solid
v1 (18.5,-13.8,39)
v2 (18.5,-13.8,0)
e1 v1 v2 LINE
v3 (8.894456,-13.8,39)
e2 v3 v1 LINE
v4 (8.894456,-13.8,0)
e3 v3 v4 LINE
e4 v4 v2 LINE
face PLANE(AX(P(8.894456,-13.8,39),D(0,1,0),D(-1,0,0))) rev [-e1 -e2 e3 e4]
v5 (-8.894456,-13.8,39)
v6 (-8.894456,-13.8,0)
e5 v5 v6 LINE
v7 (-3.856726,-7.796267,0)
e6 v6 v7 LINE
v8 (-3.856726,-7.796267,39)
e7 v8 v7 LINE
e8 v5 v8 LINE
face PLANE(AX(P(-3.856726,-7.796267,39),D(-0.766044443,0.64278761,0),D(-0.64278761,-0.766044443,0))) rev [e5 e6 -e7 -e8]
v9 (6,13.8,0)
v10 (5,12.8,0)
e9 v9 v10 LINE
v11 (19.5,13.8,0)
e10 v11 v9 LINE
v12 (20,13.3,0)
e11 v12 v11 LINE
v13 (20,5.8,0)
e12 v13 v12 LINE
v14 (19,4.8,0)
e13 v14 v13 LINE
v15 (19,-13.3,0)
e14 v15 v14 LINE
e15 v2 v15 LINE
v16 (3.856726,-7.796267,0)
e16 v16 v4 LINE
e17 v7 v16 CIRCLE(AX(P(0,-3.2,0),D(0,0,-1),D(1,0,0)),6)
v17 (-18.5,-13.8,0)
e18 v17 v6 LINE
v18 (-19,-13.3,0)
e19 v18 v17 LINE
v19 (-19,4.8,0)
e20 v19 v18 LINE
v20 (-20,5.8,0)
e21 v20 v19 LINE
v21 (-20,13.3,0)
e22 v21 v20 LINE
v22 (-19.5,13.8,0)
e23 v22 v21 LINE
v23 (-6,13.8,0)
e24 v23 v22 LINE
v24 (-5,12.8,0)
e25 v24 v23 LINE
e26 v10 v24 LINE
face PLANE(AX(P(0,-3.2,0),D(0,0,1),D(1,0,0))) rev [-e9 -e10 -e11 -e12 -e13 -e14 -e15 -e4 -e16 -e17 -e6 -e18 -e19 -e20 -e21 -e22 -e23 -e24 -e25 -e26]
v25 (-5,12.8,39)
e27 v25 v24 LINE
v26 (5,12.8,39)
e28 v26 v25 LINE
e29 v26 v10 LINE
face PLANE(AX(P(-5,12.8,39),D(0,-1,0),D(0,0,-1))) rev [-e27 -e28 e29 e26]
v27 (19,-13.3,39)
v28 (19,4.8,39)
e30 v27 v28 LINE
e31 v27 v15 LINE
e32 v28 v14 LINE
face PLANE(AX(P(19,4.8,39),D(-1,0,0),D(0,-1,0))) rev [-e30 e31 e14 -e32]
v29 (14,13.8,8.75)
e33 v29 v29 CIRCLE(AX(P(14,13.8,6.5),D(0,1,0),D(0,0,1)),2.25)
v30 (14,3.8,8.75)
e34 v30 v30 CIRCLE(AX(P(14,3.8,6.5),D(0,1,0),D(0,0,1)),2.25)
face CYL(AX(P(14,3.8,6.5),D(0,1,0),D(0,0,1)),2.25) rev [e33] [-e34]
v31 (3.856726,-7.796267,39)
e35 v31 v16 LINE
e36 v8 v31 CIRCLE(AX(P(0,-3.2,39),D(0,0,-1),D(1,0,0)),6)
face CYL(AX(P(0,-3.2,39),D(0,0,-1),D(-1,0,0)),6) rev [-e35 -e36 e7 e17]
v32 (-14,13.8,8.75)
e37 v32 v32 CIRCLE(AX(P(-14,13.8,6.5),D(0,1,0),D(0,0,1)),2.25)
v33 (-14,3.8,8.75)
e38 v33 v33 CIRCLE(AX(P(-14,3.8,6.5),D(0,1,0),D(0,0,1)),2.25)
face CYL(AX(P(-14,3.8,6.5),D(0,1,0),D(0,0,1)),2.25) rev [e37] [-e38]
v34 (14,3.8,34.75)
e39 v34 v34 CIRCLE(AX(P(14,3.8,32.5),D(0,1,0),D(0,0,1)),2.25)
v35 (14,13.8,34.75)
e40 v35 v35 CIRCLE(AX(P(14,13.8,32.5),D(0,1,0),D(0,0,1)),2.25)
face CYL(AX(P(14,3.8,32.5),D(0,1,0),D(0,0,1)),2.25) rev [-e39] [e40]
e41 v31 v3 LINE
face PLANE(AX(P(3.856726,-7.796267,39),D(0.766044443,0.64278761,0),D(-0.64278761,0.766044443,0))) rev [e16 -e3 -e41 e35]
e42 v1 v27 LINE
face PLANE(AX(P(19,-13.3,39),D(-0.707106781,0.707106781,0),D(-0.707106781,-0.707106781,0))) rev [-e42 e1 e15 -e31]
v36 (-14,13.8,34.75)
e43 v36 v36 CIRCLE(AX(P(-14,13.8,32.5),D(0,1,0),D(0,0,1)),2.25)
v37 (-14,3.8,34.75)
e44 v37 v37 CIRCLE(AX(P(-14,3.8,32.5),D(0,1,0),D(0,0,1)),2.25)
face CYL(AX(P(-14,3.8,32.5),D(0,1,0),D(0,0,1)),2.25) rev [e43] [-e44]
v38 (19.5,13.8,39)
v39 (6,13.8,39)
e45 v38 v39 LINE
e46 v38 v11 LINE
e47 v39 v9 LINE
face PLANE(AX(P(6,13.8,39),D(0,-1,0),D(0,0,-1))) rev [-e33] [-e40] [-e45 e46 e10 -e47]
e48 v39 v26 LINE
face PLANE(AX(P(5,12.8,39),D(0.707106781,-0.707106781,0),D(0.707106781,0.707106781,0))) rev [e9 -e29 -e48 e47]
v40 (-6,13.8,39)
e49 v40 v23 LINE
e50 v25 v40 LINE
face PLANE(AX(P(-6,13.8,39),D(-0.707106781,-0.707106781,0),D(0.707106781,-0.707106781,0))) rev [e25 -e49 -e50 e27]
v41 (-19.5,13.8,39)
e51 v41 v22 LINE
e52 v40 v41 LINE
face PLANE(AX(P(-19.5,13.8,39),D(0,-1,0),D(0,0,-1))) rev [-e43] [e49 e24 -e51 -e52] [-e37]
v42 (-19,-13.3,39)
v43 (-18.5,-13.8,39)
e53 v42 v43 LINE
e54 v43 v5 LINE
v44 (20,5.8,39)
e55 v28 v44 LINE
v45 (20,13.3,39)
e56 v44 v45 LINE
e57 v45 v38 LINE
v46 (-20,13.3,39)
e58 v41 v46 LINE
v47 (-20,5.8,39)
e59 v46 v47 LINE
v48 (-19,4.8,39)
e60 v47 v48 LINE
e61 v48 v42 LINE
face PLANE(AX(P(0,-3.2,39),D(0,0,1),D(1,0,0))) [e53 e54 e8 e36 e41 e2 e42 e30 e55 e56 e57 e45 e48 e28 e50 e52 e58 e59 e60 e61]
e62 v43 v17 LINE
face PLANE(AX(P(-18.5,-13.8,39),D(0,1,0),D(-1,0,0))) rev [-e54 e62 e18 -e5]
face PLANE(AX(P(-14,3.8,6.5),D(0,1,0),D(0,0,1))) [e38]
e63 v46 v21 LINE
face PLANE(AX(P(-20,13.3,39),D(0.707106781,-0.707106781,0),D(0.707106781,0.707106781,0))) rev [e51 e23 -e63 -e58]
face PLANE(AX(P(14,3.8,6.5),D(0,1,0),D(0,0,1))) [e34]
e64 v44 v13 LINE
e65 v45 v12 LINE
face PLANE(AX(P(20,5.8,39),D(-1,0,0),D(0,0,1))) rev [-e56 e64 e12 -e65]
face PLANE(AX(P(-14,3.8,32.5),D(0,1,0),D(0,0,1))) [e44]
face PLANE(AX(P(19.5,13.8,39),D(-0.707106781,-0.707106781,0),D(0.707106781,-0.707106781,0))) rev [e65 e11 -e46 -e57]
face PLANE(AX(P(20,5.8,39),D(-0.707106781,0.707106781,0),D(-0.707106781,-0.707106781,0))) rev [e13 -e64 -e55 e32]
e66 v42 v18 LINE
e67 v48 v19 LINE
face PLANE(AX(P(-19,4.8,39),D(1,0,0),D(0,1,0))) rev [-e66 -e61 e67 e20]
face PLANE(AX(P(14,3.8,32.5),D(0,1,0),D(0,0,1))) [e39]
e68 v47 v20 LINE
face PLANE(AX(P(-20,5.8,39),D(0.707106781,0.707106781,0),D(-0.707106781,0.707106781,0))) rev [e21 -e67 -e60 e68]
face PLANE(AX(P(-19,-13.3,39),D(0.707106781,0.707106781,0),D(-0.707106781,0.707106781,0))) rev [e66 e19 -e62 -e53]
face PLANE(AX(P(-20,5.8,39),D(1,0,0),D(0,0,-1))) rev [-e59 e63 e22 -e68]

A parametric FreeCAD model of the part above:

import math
import FreeCAD as App
import Part
import Sketcher
Q = App.Units.Quantity

doc = App.newDocument("Part")
body = doc.addObject("PartDesign::Body", "Body")

# Sketch on XY plane
sketch1 = body.newObject("Sketcher::SketchObject", "Sketch")
sketch1.AttachmentSupport = (doc.getObject("XY_Plane"), [""])
sketch1.MapMode = "FlatFace"
sketch1.addGeometry([
    Part.LineSegment(App.Vector(-18.5, -13.8, 0), App.Vector(-8.9, -13.8, 0)),  # 0
    Part.LineSegment(App.Vector(-8.9, -13.8, 0), App.Vector(-3.9, -7.8, 0)),  # 1
    Part.ArcOfCircle(Part.Circle(App.Vector(0, -3.2, 0), App.Vector(0, 0, 1), 6), math.radians(-50), math.radians(230)),  # 2
    Part.LineSegment(App.Vector(3.9, -7.8, 0), App.Vector(8.9, -13.8, 0)),  # 3
    Part.LineSegment(App.Vector(8.9, -13.8, 0), App.Vector(18.5, -13.8, 0)),  # 4
    Part.LineSegment(App.Vector(18.5, -13.8, 0), App.Vector(19, -13.3, 0)),  # 5
    Part.LineSegment(App.Vector(19, -13.3, 0), App.Vector(19, 4.8, 0)),  # 6
    Part.LineSegment(App.Vector(19, 4.8, 0), App.Vector(20, 5.8, 0)),  # 7
    Part.LineSegment(App.Vector(20, 5.8, 0), App.Vector(20, 13.3, 0)),  # 8
    Part.LineSegment(App.Vector(20, 13.3, 0), App.Vector(19.5, 13.8, 0)),  # 9
    Part.LineSegment(App.Vector(19.5, 13.8, 0), App.Vector(6, 13.8, 0)),  # 10
    Part.LineSegment(App.Vector(6, 13.8, 0), App.Vector(5, 12.8, 0)),  # 11
    Part.LineSegment(App.Vector(5, 12.8, 0), App.Vector(-5, 12.8, 0)),  # 12
    Part.LineSegment(App.Vector(-5, 12.8, 0), App.Vector(-6, 13.8, 0)),  # 13
    Part.LineSegment(App.Vector(-6, 13.8, 0), App.Vector(-19.5, 13.8, 0)),  # 14
    Part.LineSegment(App.Vector(-19.5, 13.8, 0), App.Vector(-20, 13.3, 0)),  # 15
    Part.LineSegment(App.Vector(-20, 13.3, 0), App.Vector(-20, 5.8, 0)),  # 16
    Part.LineSegment(App.Vector(-20, 5.8, 0), App.Vector(-19, 4.8, 0)),  # 17
    Part.LineSegment(App.Vector(-19, 4.8, 0), App.Vector(-19, -13.3, 0)),  # 18
    Part.LineSegment(App.Vector(-19, -13.3, 0), App.Vector(-18.5, -13.8, 0)),  # 19
], False)
sketch1.addConstraint([
    Sketcher.Constraint("Coincident", 0, 2, 1, 1),
    Sketcher.Constraint("Coincident", 1, 2, 2, 2),
    Sketcher.Constraint("Coincident", 2, 1, 3, 1),
    Sketcher.Constraint("Coincident", 3, 2, 4, 1),
    Sketcher.Constraint("Coincident", 4, 2, 5, 1),
    Sketcher.Constraint("Coincident", 5, 2, 6, 1),
    Sketcher.Constraint("Coincident", 6, 2, 7, 1),
    Sketcher.Constraint("Coincident", 7, 2, 8, 1),
    Sketcher.Constraint("Coincident", 8, 2, 9, 1),
    Sketcher.Constraint("Coincident", 9, 2, 10, 1),
    Sketcher.Constraint("Coincident", 10, 2, 11, 1),
    Sketcher.Constraint("Coincident", 11, 2, 12, 1),
    Sketcher.Constraint("Coincident", 12, 2, 13, 1),
    Sketcher.Constraint("Coincident", 13, 2, 14, 1),
    Sketcher.Constraint("Coincident", 14, 2, 15, 1),
    Sketcher.Constraint("Coincident", 15, 2, 16, 1),
    Sketcher.Constraint("Coincident", 16, 2, 17, 1),
    Sketcher.Constraint("Coincident", 17, 2, 18, 1),
    Sketcher.Constraint("Coincident", 18, 2, 19, 1),
    Sketcher.Constraint("Coincident", 19, 2, 0, 1),
    Sketcher.Constraint("Horizontal", 0),
    Sketcher.Constraint("Horizontal", 4),
    Sketcher.Constraint("Vertical", 6),
    Sketcher.Constraint("Vertical", 8),
    Sketcher.Constraint("Horizontal", 10),
    Sketcher.Constraint("Horizontal", 12),
    Sketcher.Constraint("Horizontal", 14),
    Sketcher.Constraint("Vertical", 16),
    Sketcher.Constraint("Vertical", 18),
    Sketcher.Constraint("Symmetric", 1, 2, 2, 1, -2),
    Sketcher.Constraint("Symmetric", 0, 2, 3, 2, -2),
    Sketcher.Constraint("Symmetric", 10, 2, 13, 2, -2),
    Sketcher.Constraint("Symmetric", 8, 2, 15, 2, -2),
    Sketcher.Constraint("Symmetric", 6, 2, 17, 2, -2),
    Sketcher.Constraint("Parallel", 5, 7),
    Sketcher.Constraint("Perpendicular", 7, 9),
    Sketcher.Constraint("Perpendicular", 9, 11),
    Sketcher.Constraint("Perpendicular", 11, 13),
    Sketcher.Constraint("Perpendicular", 13, 15),
    Sketcher.Constraint("Perpendicular", 15, 17),
    Sketcher.Constraint("Parallel", 17, 19),
    Sketcher.Constraint("Horizontal", 7, 2, 16, 2),
    Sketcher.Constraint("Horizontal", 5, 2, 18, 2),
    Sketcher.Constraint("Equal", 5, 9),
    Sketcher.Constraint("Equal", 7, 11),
    Sketcher.Constraint("Radius", 2, Q("6 mm")),
    Sketcher.Constraint("DistanceX", 12, 2, 12, 1, Q("10 mm")),
    Sketcher.Constraint("Angle", 1, Q("50 deg")),
    Sketcher.Constraint("DistanceX", 10, 2, 10, 1, Q("13.5 mm")),
    Sketcher.Constraint("DistanceY", 6, 1, 6, 2, Q("18.1 mm")),
    Sketcher.Constraint("DistanceY", 8, 1, 8, 2, Q("7.5 mm")),
    Sketcher.Constraint("DistanceX", -1, 1, 5, 2, Q("19 mm")),
    Sketcher.Constraint("DistanceX", -1, 1, 7, 2, Q("20 mm")),
    Sketcher.Constraint("DistanceY", 2, 3, 6, 2, Q("8 mm")),
    Sketcher.Constraint("DistanceY", 2, 3, -1, 1, Q("3.2 mm")),
    Sketcher.Constraint("DistanceX", 0, 1, 0, 2, Q("9.605544 mm")),
])
pad1 = body.newObject("PartDesign::Pad", "Pad")
pad1.Profile = sketch1
pad1.Length = 39

# Sketch on XZ plane
sketch2 = body.newObject("Sketcher::SketchObject", "Sketch001")
sketch2.AttachmentSupport = (doc.getObject("XZ_Plane"), [""])
sketch2.MapMode = "FlatFace"
sketch2.AttachmentOffset = App.Placement(App.Vector(0, 0, -13.8), App.Rotation())
sketch2.addGeometry([
    Part.Circle(App.Vector(-14, 6.5, 0), App.Vector(0, 0, 1), 2.2),
    Part.Circle(App.Vector(-14, 32.5, 0), App.Vector(0, 0, 1), 2.2),
    Part.Circle(App.Vector(14, 32.5, 0), App.Vector(0, 0, 1), 2.2),
    Part.Circle(App.Vector(14, 6.5, 0), App.Vector(0, 0, 1), 2.2),
], False)
sketch2.addConstraint([
    Sketcher.Constraint("Equal", 0, 1),
    Sketcher.Constraint("Equal", 1, 2),
    Sketcher.Constraint("Equal", 2, 3),
    Sketcher.Constraint("Symmetric", 1, 3, 2, 3, -2),
    Sketcher.Constraint("Symmetric", 0, 3, 3, 3, -2),
    Sketcher.Constraint("Vertical", 0, 3, 1, 3),
    Sketcher.Constraint("Diameter", 0, Q("4.5 mm")),
    Sketcher.Constraint("DistanceX", 0, 3, -1, 1, Q("14 mm")),
    Sketcher.Constraint("DistanceY", 0, 3, 1, 3, Q("26 mm")),
    Sketcher.Constraint("DistanceY", -1, 1, 0, 3, Q("6.5 mm")),
])
pocket1 = body.newObject("PartDesign::Pocket", "Pocket")
pocket1.Profile = sketch2
pocket1.Length = 10
pocket1.Reversed = True

doc.recompute()
